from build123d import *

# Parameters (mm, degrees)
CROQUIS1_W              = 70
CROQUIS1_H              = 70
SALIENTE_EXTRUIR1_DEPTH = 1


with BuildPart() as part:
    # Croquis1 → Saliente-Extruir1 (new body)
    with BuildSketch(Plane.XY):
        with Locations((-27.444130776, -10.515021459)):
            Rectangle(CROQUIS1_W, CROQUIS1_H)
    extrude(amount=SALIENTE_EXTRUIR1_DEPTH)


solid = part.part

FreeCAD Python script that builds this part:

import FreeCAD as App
import Part
import Sketcher


def add_polygon(sketch, points):
    """Adds a closed chain of lines whose ends are joined by coincident constraints."""
    first, n = sketch.GeometryCount, len(points)
    for a, b in zip(points, points[1:] + points[:1]):
        sketch.addGeometry(Part.LineSegment(App.Vector(*a, 0), App.Vector(*b, 0)), False)
    for i in range(n):
        sketch.addConstraint(Sketcher.Constraint("Coincident", first + i, 2, first + (i + 1) % n, 1))

doc = App.newDocument("Part")
body = doc.addObject("PartDesign::Body", "Body")

sketch1 = body.newObject("Sketcher::SketchObject", "Sketch")
sketch1.AttachmentSupport = (doc.getObject("XY_Plane"), [""])
sketch1.MapMode = "FlatFace"
add_polygon(sketch1, [(-62, 24), (-62, -46), (8, -46), (8, 24)])
sketch1.addConstraint(Sketcher.Constraint("Vertical", 0))
sketch1.addConstraint(Sketcher.Constraint("Horizontal", 1))
sketch1.addConstraint(Sketcher.Constraint("Vertical", 2))
sketch1.addConstraint(Sketcher.Constraint("Horizontal", 3))
sketch1.addConstraint(Sketcher.Constraint("Equal", 3, 0))
sketch1.addConstraint(Sketcher.Constraint("DistanceX", 1, 1, 1, 2, 70.0))
sketch1.addConstraint(Sketcher.Constraint("DistanceX", 0, 2, -1, 1, 62.444131))
sketch1.addConstraint(Sketcher.Constraint("DistanceY", 0, 2, -1, 1, 45.515021))
pad1 = body.newObject("PartDesign::Pad", "Pad")
pad1.Profile = sketch1
pad1.Length = 1

doc.recompute()
